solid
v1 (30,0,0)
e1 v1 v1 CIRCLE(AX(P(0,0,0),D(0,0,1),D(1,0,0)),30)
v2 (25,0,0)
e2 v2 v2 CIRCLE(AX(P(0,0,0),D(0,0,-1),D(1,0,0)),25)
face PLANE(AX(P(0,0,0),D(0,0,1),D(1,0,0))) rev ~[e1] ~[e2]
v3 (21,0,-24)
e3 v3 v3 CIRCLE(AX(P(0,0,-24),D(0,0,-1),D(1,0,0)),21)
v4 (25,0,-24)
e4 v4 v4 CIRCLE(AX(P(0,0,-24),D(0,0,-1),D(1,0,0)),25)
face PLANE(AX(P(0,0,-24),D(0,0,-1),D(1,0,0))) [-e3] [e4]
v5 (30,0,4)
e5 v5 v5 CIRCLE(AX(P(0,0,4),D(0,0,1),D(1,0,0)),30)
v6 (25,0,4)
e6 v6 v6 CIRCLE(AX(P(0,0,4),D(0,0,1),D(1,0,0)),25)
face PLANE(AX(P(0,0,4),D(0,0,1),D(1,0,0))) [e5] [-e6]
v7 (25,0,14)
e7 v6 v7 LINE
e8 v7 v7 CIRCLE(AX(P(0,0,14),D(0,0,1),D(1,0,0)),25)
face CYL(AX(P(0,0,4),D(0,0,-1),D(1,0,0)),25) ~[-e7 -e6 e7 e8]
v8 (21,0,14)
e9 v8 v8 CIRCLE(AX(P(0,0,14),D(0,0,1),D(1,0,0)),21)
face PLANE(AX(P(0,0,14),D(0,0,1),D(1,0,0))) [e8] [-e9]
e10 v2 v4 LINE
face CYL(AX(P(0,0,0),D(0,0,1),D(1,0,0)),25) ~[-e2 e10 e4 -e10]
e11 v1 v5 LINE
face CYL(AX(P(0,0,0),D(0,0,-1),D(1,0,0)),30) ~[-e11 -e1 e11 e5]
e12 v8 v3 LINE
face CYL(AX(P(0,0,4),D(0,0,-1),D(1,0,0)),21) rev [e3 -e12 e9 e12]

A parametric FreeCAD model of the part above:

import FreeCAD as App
import Part
import Sketcher

V = App.Vector
Q = App.Units.Quantity

doc = App.newDocument("Part")
body = doc.addObject("PartDesign::Body", "Body")

# Sketch on XY plane
sketch1 = body.newObject("Sketcher::SketchObject", "Sketch")
sketch1.AttachmentSupport = (doc.getObject("XY_Plane"), [""])
sketch1.MapMode = "FlatFace"
sketch1.addGeometry(Part.Circle(V(0, 0, 0), V(0, 0, 1), 30), False)
sketch1.addGeometry(Part.Circle(V(0, 0, 0), V(0, 0, 1), 21), False)
sketch1.addConstraint(Sketcher.Constraint("Coincident", 0, 3, -1, 1))
sketch1.addConstraint(Sketcher.Constraint("Coincident", 1, 3, -1, 1))
sketch1.addConstraint(Sketcher.Constraint("Diameter", 0, Q("60 mm")))
sketch1.addConstraint(Sketcher.Constraint("Diameter", 1, Q("42 mm")))
pad1 = body.newObject("PartDesign::Pad", "Pad")
pad1.Profile = sketch1
pad1.Length = 4

# Sketch on XY plane
sketch2 = body.newObject("Sketcher::SketchObject", "Sketch001")
sketch2.AttachmentSupport = (doc.getObject("XY_Plane"), [""])
sketch2.MapMode = "FlatFace"
sketch2.addGeometry(Part.Circle(V(0, 0, 0), V(0, 0, 1), 25), False)
sketch2.addGeometry(Part.Circle(V(0, 0, 0), V(0, 0, 1), 21), False)
sketch2.addConstraint(Sketcher.Constraint("Coincident", 0, 3, -1, 1))
sketch2.addConstraint(Sketcher.Constraint("Coincident", 1, 3, -1, 1))
sketch2.addConstraint(Sketcher.Constraint("Diameter", 0, Q("50 mm")))
sketch2.addConstraint(Sketcher.Constraint("Diameter", 1, Q("42 mm")))
pad2 = body.newObject("PartDesign::Pad", "Pad001")
pad2.Profile = sketch2
pad2.Length = 24
pad2.Reversed = True

# Sketch on XY plane
sketch3 = body.newObject("Sketcher::SketchObject", "Sketch002")
sketch3.AttachmentSupport = (doc.getObject("XY_Plane"), [""])
sketch3.MapMode = "FlatFace"
sketch3.AttachmentOffset = App.Placement(V(0, 0, 4), App.Rotation())
sketch3.addGeometry(Part.Circle(V(0, 0, 0), V(0, 0, 1), 25), False)
sketch3.addGeometry(Part.Circle(V(0, 0, 0), V(0, 0, 1), 21), False)
sketch3.addConstraint(Sketcher.Constraint("Coincident", 0, 3, -1, 1))
sketch3.addConstraint(Sketcher.Constraint("Coincident", 1, 3, -1, 1))
sketch3.addConstraint(Sketcher.Constraint("Diameter", 0, Q("50 mm")))
sketch3.addConstraint(Sketcher.Constraint("Diameter", 1, Q("42 mm")))
pad3 = body.newObject("PartDesign::Pad", "Pad002")
pad3.Profile = sketch3
pad3.Length = 10

doc.recompute()
